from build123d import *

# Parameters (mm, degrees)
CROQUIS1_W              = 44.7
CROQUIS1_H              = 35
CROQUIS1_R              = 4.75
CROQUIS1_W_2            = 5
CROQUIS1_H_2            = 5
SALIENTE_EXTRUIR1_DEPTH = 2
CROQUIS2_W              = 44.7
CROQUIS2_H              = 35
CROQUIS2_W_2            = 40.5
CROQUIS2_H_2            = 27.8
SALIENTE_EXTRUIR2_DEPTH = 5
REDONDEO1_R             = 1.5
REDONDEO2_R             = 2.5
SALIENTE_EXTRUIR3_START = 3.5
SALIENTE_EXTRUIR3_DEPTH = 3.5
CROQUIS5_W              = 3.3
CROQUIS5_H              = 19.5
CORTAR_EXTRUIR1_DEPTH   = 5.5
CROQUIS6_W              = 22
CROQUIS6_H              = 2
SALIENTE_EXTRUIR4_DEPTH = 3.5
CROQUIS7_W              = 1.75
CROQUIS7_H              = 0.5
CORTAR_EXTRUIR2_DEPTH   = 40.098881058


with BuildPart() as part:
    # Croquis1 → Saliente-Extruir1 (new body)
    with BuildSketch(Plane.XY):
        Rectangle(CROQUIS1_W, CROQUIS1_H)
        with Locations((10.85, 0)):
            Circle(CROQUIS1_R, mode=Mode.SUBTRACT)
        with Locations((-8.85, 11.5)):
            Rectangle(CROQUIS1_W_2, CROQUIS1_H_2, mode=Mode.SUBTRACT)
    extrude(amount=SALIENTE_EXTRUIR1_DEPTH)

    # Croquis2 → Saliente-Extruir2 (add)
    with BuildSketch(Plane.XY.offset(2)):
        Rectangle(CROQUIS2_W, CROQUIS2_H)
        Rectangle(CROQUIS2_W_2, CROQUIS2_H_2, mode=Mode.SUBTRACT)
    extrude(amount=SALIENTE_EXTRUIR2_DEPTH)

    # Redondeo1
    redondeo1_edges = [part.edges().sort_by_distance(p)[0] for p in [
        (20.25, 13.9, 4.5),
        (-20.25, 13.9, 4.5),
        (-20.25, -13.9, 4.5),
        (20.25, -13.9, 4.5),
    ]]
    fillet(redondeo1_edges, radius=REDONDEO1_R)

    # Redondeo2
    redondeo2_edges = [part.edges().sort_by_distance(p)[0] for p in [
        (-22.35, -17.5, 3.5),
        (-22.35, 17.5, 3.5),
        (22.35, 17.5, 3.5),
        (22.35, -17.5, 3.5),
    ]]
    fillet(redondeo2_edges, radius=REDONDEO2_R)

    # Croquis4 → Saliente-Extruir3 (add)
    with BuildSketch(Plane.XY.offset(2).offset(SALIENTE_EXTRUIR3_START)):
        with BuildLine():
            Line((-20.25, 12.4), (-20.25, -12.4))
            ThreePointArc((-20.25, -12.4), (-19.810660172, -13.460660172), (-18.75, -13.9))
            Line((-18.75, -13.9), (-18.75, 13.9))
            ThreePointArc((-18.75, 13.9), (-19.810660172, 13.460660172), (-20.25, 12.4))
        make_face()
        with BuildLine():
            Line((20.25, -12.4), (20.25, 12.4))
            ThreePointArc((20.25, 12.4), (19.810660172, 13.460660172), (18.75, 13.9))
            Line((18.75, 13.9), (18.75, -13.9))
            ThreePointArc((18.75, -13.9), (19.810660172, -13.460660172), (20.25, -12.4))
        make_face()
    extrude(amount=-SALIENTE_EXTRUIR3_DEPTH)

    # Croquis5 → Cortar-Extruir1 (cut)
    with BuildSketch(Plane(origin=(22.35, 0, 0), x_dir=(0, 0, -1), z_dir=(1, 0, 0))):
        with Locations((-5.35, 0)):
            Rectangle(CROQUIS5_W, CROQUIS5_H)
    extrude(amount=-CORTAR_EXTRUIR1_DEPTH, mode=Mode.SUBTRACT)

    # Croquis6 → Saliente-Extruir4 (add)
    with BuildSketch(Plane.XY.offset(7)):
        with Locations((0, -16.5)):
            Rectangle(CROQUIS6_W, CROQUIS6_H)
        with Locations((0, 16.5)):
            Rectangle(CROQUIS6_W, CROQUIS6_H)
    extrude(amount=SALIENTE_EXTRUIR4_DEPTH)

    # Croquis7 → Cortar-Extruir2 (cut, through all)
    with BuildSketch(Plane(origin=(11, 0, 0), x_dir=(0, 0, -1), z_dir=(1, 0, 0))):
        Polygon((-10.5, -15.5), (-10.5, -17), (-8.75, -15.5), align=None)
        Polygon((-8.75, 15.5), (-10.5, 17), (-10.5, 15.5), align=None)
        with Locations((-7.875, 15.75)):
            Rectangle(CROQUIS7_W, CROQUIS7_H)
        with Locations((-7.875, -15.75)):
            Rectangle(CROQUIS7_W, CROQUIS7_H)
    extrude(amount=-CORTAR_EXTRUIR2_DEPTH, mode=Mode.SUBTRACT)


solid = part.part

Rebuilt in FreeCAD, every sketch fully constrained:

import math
import FreeCAD as App
import Part
import Sketcher
Q = App.Units.Quantity


def edges_at(feature, points):
    """Names of the edges that pass closest to the given points."""
    edges = feature.Shape.Edges
    near = lambda p: min(range(len(edges)), key=lambda i: edges[i].distToShape(Part.Vertex(*p))[0])
    return sorted({f"Edge{near(p) + 1}" for p in points})

doc = App.newDocument("Part")
body = doc.addObject("PartDesign::Body", "Body")

# Sketch on XY plane
sketch1 = body.newObject("Sketcher::SketchObject", "Sketch")
sketch1.AttachmentSupport = (doc.getObject("XY_Plane"), [""])
sketch1.MapMode = "FlatFace"
sketch1.addGeometry(Part.LineSegment(App.Vector(-22.4, 17.5, 0), App.Vector(-22.4, -17.5, 0)), False)
sketch1.addGeometry(Part.LineSegment(App.Vector(-22.4, -17.5, 0), App.Vector(22.4, -17.5, 0)), False)
sketch1.addGeometry(Part.LineSegment(App.Vector(22.4, -17.5, 0), App.Vector(22.4, 17.5, 0)), False)
sketch1.addGeometry(Part.LineSegment(App.Vector(22.4, 17.5, 0), App.Vector(-22.4, 17.5, 0)), False)
sketch1.addGeometry(Part.Circle(App.Vector(10.8, 0, 0), App.Vector(0, 0, 1), 4.8), False)
sketch1.addGeometry(Part.LineSegment(App.Vector(-6.3, 9, 0), App.Vector(-11.3, 9, 0)), False)
sketch1.addGeometry(Part.LineSegment(App.Vector(-11.3, 9, 0), App.Vector(-11.3, 14, 0)), False)
sketch1.addGeometry(Part.LineSegment(App.Vector(-11.3, 14, 0), App.Vector(-6.3, 14, 0)), False)
sketch1.addGeometry(Part.LineSegment(App.Vector(-6.3, 14, 0), App.Vector(-6.3, 9, 0)), False)
sketch1.addConstraint(Sketcher.Constraint("Coincident", 0, 2, 1, 1))
sketch1.addConstraint(Sketcher.Constraint("Coincident", 1, 2, 2, 1))
sketch1.addConstraint(Sketcher.Constraint("Coincident", 2, 2, 3, 1))
sketch1.addConstraint(Sketcher.Constraint("Coincident", 3, 2, 0, 1))
sketch1.addConstraint(Sketcher.Constraint("Coincident", 5, 2, 6, 1))
sketch1.addConstraint(Sketcher.Constraint("Coincident", 6, 2, 7, 1))
sketch1.addConstraint(Sketcher.Constraint("Coincident", 7, 2, 8, 1))
sketch1.addConstraint(Sketcher.Constraint("Coincident", 8, 2, 5, 1))
sketch1.addConstraint(Sketcher.Constraint("Vertical", 0))
sketch1.addConstraint(Sketcher.Constraint("Horizontal", 1))
sketch1.addConstraint(Sketcher.Constraint("Vertical", 2))
sketch1.addConstraint(Sketcher.Constraint("Horizontal", 3))
sketch1.addConstraint(Sketcher.Constraint("Horizontal", 5))
sketch1.addConstraint(Sketcher.Constraint("Vertical", 6))
sketch1.addConstraint(Sketcher.Constraint("Horizontal", 7))
sketch1.addConstraint(Sketcher.Constraint("Vertical", 8))
sketch1.addConstraint(Sketcher.Constraint("Symmetric", 0, 2, 2, 2, -1, 1))
sketch1.addConstraint(Sketcher.Constraint("PointOnObject", 4, 3, -1))
sketch1.addConstraint(Sketcher.Constraint("Equal", 7, 6))
sketch1.addConstraint(Sketcher.Constraint("Diameter", 4, Q("9.5 mm")))
sketch1.addConstraint(Sketcher.Constraint("DistanceX", 5, 2, 5, 1, Q("5 mm")))
sketch1.addConstraint(Sketcher.Constraint("DistanceY", 0, 2, 0, 1, Q("35 mm")))
sketch1.addConstraint(Sketcher.Constraint("DistanceX", 1, 1, 1, 2, Q("44.7 mm")))
sketch1.addConstraint(Sketcher.Constraint("DistanceY", -1, 1, 5, 2, Q("9 mm")))
sketch1.addConstraint(Sketcher.Constraint("DistanceX", 3, 2, 5, 2, Q("11 mm")))
sketch1.addConstraint(Sketcher.Constraint("DistanceX", 0, 2, 4, 3, Q("33.2 mm")))
pad1 = body.newObject("PartDesign::Pad", "Pad")
pad1.Profile = sketch1
pad1.Length = 2

# Sketch on XY plane
sketch2 = body.newObject("Sketcher::SketchObject", "Sketch001")
sketch2.AttachmentSupport = (doc.getObject("XY_Plane"), [""])
sketch2.MapMode = "FlatFace"
sketch2.AttachmentOffset = App.Placement(App.Vector(0, 0, 2), App.Rotation())
sketch2.addGeometry(Part.LineSegment(App.Vector(-22, 18, 0), App.Vector(-22, -18, 0)), False)
sketch2.addGeometry(Part.LineSegment(App.Vector(-22, -18, 0), App.Vector(22, -18, 0)), False)
sketch2.addGeometry(Part.LineSegment(App.Vector(22, -18, 0), App.Vector(22, 18, 0)), False)
sketch2.addGeometry(Part.LineSegment(App.Vector(22, 18, 0), App.Vector(-22, 18, 0)), False)
sketch2.addGeometry(Part.LineSegment(App.Vector(20, -14, 0), App.Vector(-20, -14, 0)), False)
sketch2.addGeometry(Part.LineSegment(App.Vector(-20, -14, 0), App.Vector(-20, 14, 0)), False)
sketch2.addGeometry(Part.LineSegment(App.Vector(-20, 14, 0), App.Vector(20, 14, 0)), False)
sketch2.addGeometry(Part.LineSegment(App.Vector(20, 14, 0), App.Vector(20, -14, 0)), False)
sketch2.addConstraint(Sketcher.Constraint("Coincident", 0, 2, 1, 1))
sketch2.addConstraint(Sketcher.Constraint("Coincident", 1, 2, 2, 1))
sketch2.addConstraint(Sketcher.Constraint("Coincident", 2, 2, 3, 1))
sketch2.addConstraint(Sketcher.Constraint("Coincident", 3, 2, 0, 1))
sketch2.addConstraint(Sketcher.Constraint("Coincident", 4, 2, 5, 1))
sketch2.addConstraint(Sketcher.Constraint("Coincident", 5, 2, 6, 1))
sketch2.addConstraint(Sketcher.Constraint("Coincident", 6, 2, 7, 1))
sketch2.addConstraint(Sketcher.Constraint("Coincident", 7, 2, 4, 1))
sketch2.addConstraint(Sketcher.Constraint("Vertical", 0))
sketch2.addConstraint(Sketcher.Constraint("Horizontal", 1))
sketch2.addConstraint(Sketcher.Constraint("Vertical", 2))
sketch2.addConstraint(Sketcher.Constraint("Horizontal", 3))
sketch2.addConstraint(Sketcher.Constraint("Horizontal", 4))
sketch2.addConstraint(Sketcher.Constraint("Vertical", 5))
sketch2.addConstraint(Sketcher.Constraint("Horizontal", 6))
sketch2.addConstraint(Sketcher.Constraint("Vertical", 7))
sketch2.addConstraint(Sketcher.Constraint("Symmetric", 0, 2, 2, 2, -1, 1))
sketch2.addConstraint(Sketcher.Constraint("Symmetric", 4, 2, 6, 2, -1, 1))
sketch2.addConstraint(Sketcher.Constraint("DistanceY", 0, 2, 0, 1, Q("35 mm")))
sketch2.addConstraint(Sketcher.Constraint("DistanceX", 1, 1, 1, 2, Q("44.7 mm")))
sketch2.addConstraint(Sketcher.Constraint("DistanceX", 4, 2, 4, 1, Q("40.5 mm")))
sketch2.addConstraint(Sketcher.Constraint("DistanceY", 5, 1, 5, 2, Q("27.8 mm")))
pad2 = body.newObject("PartDesign::Pad", "Pad001")
pad2.Profile = sketch2
pad2.Length = 5
doc.recompute()

fillet = body.newObject("PartDesign::Fillet", "Fillet")
fillet.Base = (pad2, edges_at(pad2, [
    (20.25, 13.9, 4.5),
    (-20.25, 13.9, 4.5),
    (-20.25, -13.9, 4.5),
    (20.25, -13.9, 4.5),
]))
fillet.Radius = 1.5
doc.recompute()

fillet2 = body.newObject("PartDesign::Fillet", "Fillet001")
fillet2.Base = (fillet, edges_at(fillet, [
    (-22.35, -17.5, 3.5),
    (-22.35, 17.5, 3.5),
    (22.35, 17.5, 3.5),
    (22.35, -17.5, 3.5),
]))
fillet2.Radius = 2.5

# Sketch on XY plane
sketch3 = body.newObject("Sketcher::SketchObject", "Sketch002")
sketch3.AttachmentSupport = (doc.getObject("XY_Plane"), [""])
sketch3.MapMode = "FlatFace"
sketch3.AttachmentOffset = App.Placement(App.Vector(0, 0, 5.5), App.Rotation())
sketch3.addGeometry(Part.LineSegment(App.Vector(-20.2, 12.4, 0), App.Vector(-20.2, -12.4, 0)), False)
sketch3.addGeometry(Part.ArcOfCircle(Part.Circle(App.Vector(-18.8, -12.4, 0), App.Vector(0, 0, 1), 1.5), math.radians(180), math.radians(270)), False)
sketch3.addGeometry(Part.LineSegment(App.Vector(-18.8, -13.9, 0), App.Vector(-18.8, 13.9, 0)), False)
sketch3.addGeometry(Part.ArcOfCircle(Part.Circle(App.Vector(-18.8, 12.4, 0), App.Vector(0, 0, 1), 1.5), math.radians(90), math.radians(180)), False)
sketch3.addGeometry(Part.LineSegment(App.Vector(20.2, -12.4, 0), App.Vector(20.2, 12.4, 0)), False)
sketch3.addGeometry(Part.ArcOfCircle(Part.Circle(App.Vector(18.8, 12.4, 0), App.Vector(0, 0, 1), 1.5), math.radians(0), math.radians(90)), False)
sketch3.addGeometry(Part.LineSegment(App.Vector(18.8, 13.9, 0), App.Vector(18.8, -13.9, 0)), False)
sketch3.addGeometry(Part.ArcOfCircle(Part.Circle(App.Vector(18.8, -12.4, 0), App.Vector(0, 0, 1), 1.5), math.radians(-90), math.radians(0)), False)
sketch3.addConstraint(Sketcher.Constraint("Tangent", 0, 2, 1, 1))
sketch3.addConstraint(Sketcher.Constraint("Coincident", 1, 2, 2, 1))
sketch3.addConstraint(Sketcher.Constraint("Coincident", 2, 2, 3, 1))
sketch3.addConstraint(Sketcher.Constraint("Tangent", 3, 2, 0, 1))
sketch3.addConstraint(Sketcher.Constraint("Tangent", 4, 2, 5, 1))
sketch3.addConstraint(Sketcher.Constraint("Coincident", 5, 2, 6, 1))
sketch3.addConstraint(Sketcher.Constraint("Coincident", 6, 2, 7, 1))
sketch3.addConstraint(Sketcher.Constraint("Tangent", 7, 2, 4, 1))
sketch3.addConstraint(Sketcher.Constraint("Vertical", 0))
sketch3.addConstraint(Sketcher.Constraint("Vertical", 2))
sketch3.addConstraint(Sketcher.Constraint("Vertical", 4))
sketch3.addConstraint(Sketcher.Constraint("Vertical", 6))
sketch3.addConstraint(Sketcher.Constraint("Equal", 1, 3))
sketch3.addConstraint(Sketcher.Constraint("Equal", 3, 5))
sketch3.addConstraint(Sketcher.Constraint("Equal", 5, 7))
sketch3.addConstraint(Sketcher.Constraint("Symmetric", 1, 3, 5, 3, -1, 1))
sketch3.addConstraint(Sketcher.Constraint("Symmetric", 2, 2, 6, 2, -1, 1))
sketch3.addConstraint(Sketcher.Constraint("Horizontal", 3, 3, 5, 3))
sketch3.addConstraint(Sketcher.Constraint("Vertical", 3, 3, 1, 2))
sketch3.addConstraint(Sketcher.Constraint("Radius", 1, Q("1.5 mm")))
sketch3.addConstraint(Sketcher.Constraint("DistanceY", 0, 2, 0, 1, Q("24.8 mm")))
sketch3.addConstraint(Sketcher.Constraint("DistanceX", 0, 2, 7, 3, Q("39 mm")))
pad3 = body.newObject("PartDesign::Pad", "Pad002")
pad3.Profile = sketch3
pad3.Length = 3.5
pad3.Reversed = True

# Sketch on YZ plane
sketch4 = body.newObject("Sketcher::SketchObject", "Sketch003")
sketch4.AttachmentSupport = (doc.getObject("YZ_Plane"), [""])
sketch4.MapMode = "FlatFace"
sketch4.AttachmentOffset = App.Placement(App.Vector(0, 0, 22.35), App.Rotation())
sketch4.addGeometry(Part.LineSegment(App.Vector(9.8, 7, 0), App.Vector(-9.8, 7, 0)), False)
sketch4.addGeometry(Part.LineSegment(App.Vector(-9.8, 7, 0), App.Vector(-9.8, 3.7, 0)), False)
sketch4.addGeometry(Part.LineSegment(App.Vector(-9.8, 3.7, 0), App.Vector(9.8, 3.7, 0)), False)
sketch4.addGeometry(Part.LineSegment(App.Vector(9.8, 3.7, 0), App.Vector(9.8, 7, 0)), False)
sketch4.addConstraint(Sketcher.Constraint("Coincident", 0, 2, 1, 1))
sketch4.addConstraint(Sketcher.Constraint("Coincident", 1, 2, 2, 1))
sketch4.addConstraint(Sketcher.Constraint("Coincident", 2, 2, 3, 1))
sketch4.addConstraint(Sketcher.Constraint("Coincident", 3, 2, 0, 1))
sketch4.addConstraint(Sketcher.Constraint("Horizontal", 0))
sketch4.addConstraint(Sketcher.Constraint("Vertical", 1))
sketch4.addConstraint(Sketcher.Constraint("Horizontal", 2))
sketch4.addConstraint(Sketcher.Constraint("Vertical", 3))
sketch4.addConstraint(Sketcher.Constraint("DistanceX", 0, 2, 0, 1, Q("19.5 mm")))
sketch4.addConstraint(Sketcher.Constraint("DistanceY", 1, 2, 1, 1, Q("3.3 mm")))
sketch4.addConstraint(Sketcher.Constraint("DistanceY", -1, 1, 0, 2, Q("7 mm")))
sketch4.addConstraint(Sketcher.Constraint("DistanceX", 0, 2, -1, 1, Q("9.75 mm")))
pocket1 = body.newObject("PartDesign::Pocket", "Pocket")
pocket1.Profile = sketch4
pocket1.Length = 5.5

# Sketch on XY plane
sketch5 = body.newObject("Sketcher::SketchObject", "Sketch004")
sketch5.AttachmentSupport = (doc.getObject("XY_Plane"), [""])
sketch5.MapMode = "FlatFace"
sketch5.AttachmentOffset = App.Placement(App.Vector(0, 0, 7), App.Rotation())
sketch5.addGeometry(Part.LineSegment(App.Vector(-11, -15.5, 0), App.Vector(-11, -17.5, 0)), False)
sketch5.addGeometry(Part.LineSegment(App.Vector(-11, -17.5, 0), App.Vector(11, -17.5, 0)), False)
sketch5.addGeometry(Part.LineSegment(App.Vector(11, -17.5, 0), App.Vector(11, -15.5, 0)), False)
sketch5.addGeometry(Part.LineSegment(App.Vector(11, -15.5, 0), App.Vector(-11, -15.5, 0)), False)
sketch5.addGeometry(Part.LineSegment(App.Vector(-11, 17.5, 0), App.Vector(-11, 15.5, 0)), False)
sketch5.addGeometry(Part.LineSegment(App.Vector(-11, 15.5, 0), App.Vector(11, 15.5, 0)), False)
sketch5.addGeometry(Part.LineSegment(App.Vector(11, 15.5, 0), App.Vector(11, 17.5, 0)), False)
sketch5.addGeometry(Part.LineSegment(App.Vector(11, 17.5, 0), App.Vector(-11, 17.5, 0)), False)
sketch5.addConstraint(Sketcher.Constraint("Coincident", 0, 2, 1, 1))
sketch5.addConstraint(Sketcher.Constraint("Coincident", 1, 2, 2, 1))
sketch5.addConstraint(Sketcher.Constraint("Coincident", 2, 2, 3, 1))
sketch5.addConstraint(Sketcher.Constraint("Coincident", 3, 2, 0, 1))
sketch5.addConstraint(Sketcher.Constraint("Coincident", 4, 2, 5, 1))
sketch5.addConstraint(Sketcher.Constraint("Coincident", 5, 2, 6, 1))
sketch5.addConstraint(Sketcher.Constraint("Coincident", 6, 2, 7, 1))
sketch5.addConstraint(Sketcher.Constraint("Coincident", 7, 2, 4, 1))
sketch5.addConstraint(Sketcher.Constraint("Vertical", 0))
sketch5.addConstraint(Sketcher.Constraint("Horizontal", 1))
sketch5.addConstraint(Sketcher.Constraint("Vertical", 2))
sketch5.addConstraint(Sketcher.Constraint("Horizontal", 3))
sketch5.addConstraint(Sketcher.Constraint("Vertical", 4))
sketch5.addConstraint(Sketcher.Constraint("Horizontal", 5))
sketch5.addConstraint(Sketcher.Constraint("Vertical", 6))
sketch5.addConstraint(Sketcher.Constraint("Horizontal", 7))
sketch5.addConstraint(Sketcher.Constraint("Symmetric", 2, 2, 4, 2, -1, 1))
sketch5.addConstraint(Sketcher.Constraint("Symmetric", 0, 2, 6, 2, -1, 1))
sketch5.addConstraint(Sketcher.Constraint("Vertical", 3, 2, 4, 2))
sketch5.addConstraint(Sketcher.Constraint("DistanceX", 1, 1, 1, 2, Q("22 mm")))
sketch5.addConstraint(Sketcher.Constraint("DistanceY", 0, 2, 0, 1, Q("2 mm")))
sketch5.addConstraint(Sketcher.Constraint("DistanceY", 3, 2, 4, 2, Q("31 mm")))
pad4 = body.newObject("PartDesign::Pad", "Pad003")
pad4.Profile = sketch5
pad4.Length = 3.5

# Sketch on YZ plane
sketch6 = body.newObject("Sketcher::SketchObject", "Sketch005")
sketch6.AttachmentSupport = (doc.getObject("YZ_Plane"), [""])
sketch6.MapMode = "FlatFace"
sketch6.AttachmentOffset = App.Placement(App.Vector(0, 0, 11), App.Rotation())
sketch6.addGeometry(Part.LineSegment(App.Vector(-15.5, 10.5, 0), App.Vector(-17, 10.5, 0)), False)
sketch6.addGeometry(Part.LineSegment(App.Vector(-17, 10.5, 0), App.Vector(-15.5, 8.8, 0)), False)
sketch6.addGeometry(Part.LineSegment(App.Vector(-15.5, 8.8, 0), App.Vector(-15.5, 10.5, 0)), False)
sketch6.addGeometry(Part.LineSegment(App.Vector(15.5, 8.8, 0), App.Vector(17, 10.5, 0)), False)
sketch6.addGeometry(Part.LineSegment(App.Vector(17, 10.5, 0), App.Vector(15.5, 10.5, 0)), False)
sketch6.addGeometry(Part.LineSegment(App.Vector(15.5, 10.5, 0), App.Vector(15.5, 8.8, 0)), False)
sketch6.addGeometry(Part.LineSegment(App.Vector(16, 8.8, 0), App.Vector(15.5, 8.8, 0)), False)
sketch6.addGeometry(Part.LineSegment(App.Vector(15.5, 8.8, 0), App.Vector(15.5, 7, 0)), False)
sketch6.addGeometry(Part.LineSegment(App.Vector(15.5, 7, 0), App.Vector(16, 7, 0)), False)
sketch6.addGeometry(Part.LineSegment(App.Vector(16, 7, 0), App.Vector(16, 8.8, 0)), False)
sketch6.addGeometry(Part.LineSegment(App.Vector(-15.5, 8.8, 0), App.Vector(-16, 8.8, 0)), False)
sketch6.addGeometry(Part.LineSegment(App.Vector(-16, 8.8, 0), App.Vector(-16, 7, 0)), False)
sketch6.addGeometry(Part.LineSegment(App.Vector(-16, 7, 0), App.Vector(-15.5, 7, 0)), False)
sketch6.addGeometry(Part.LineSegment(App.Vector(-15.5, 7, 0), App.Vector(-15.5, 8.8, 0)), False)
sketch6.addConstraint(Sketcher.Constraint("Coincident", 0, 2, 1, 1))
sketch6.addConstraint(Sketcher.Constraint("Coincident", 1, 2, 2, 1))
sketch6.addConstraint(Sketcher.Constraint("Coincident", 2, 2, 0, 1))
sketch6.addConstraint(Sketcher.Constraint("Coincident", 3, 2, 4, 1))
sketch6.addConstraint(Sketcher.Constraint("Coincident", 4, 2, 5, 1))
sketch6.addConstraint(Sketcher.Constraint("Coincident", 5, 2, 3, 1))
sketch6.addConstraint(Sketcher.Constraint("Coincident", 6, 2, 7, 1))
sketch6.addConstraint(Sketcher.Constraint("Coincident", 7, 2, 8, 1))
sketch6.addConstraint(Sketcher.Constraint("Coincident", 8, 2, 9, 1))
sketch6.addConstraint(Sketcher.Constraint("Coincident", 9, 2, 6, 1))
sketch6.addConstraint(Sketcher.Constraint("Coincident", 10, 2, 11, 1))
sketch6.addConstraint(Sketcher.Constraint("Coincident", 11, 2, 12, 1))
sketch6.addConstraint(Sketcher.Constraint("Coincident", 12, 2, 13, 1))
sketch6.addConstraint(Sketcher.Constraint("Coincident", 13, 2, 10, 1))
sketch6.addConstraint(Sketcher.Constraint("Horizontal", 0))
sketch6.addConstraint(Sketcher.Constraint("Vertical", 2))
sketch6.addConstraint(Sketcher.Constraint("Horizontal", 4))
sketch6.addConstraint(Sketcher.Constraint("Vertical", 5))
sketch6.addConstraint(Sketcher.Constraint("Horizontal", 6))
sketch6.addConstraint(Sketcher.Constraint("Vertical", 7))
sketch6.addConstraint(Sketcher.Constraint("Horizontal", 8))
sketch6.addConstraint(Sketcher.Constraint("Vertical", 9))
sketch6.addConstraint(Sketcher.Constraint("Horizontal", 10))
sketch6.addConstraint(Sketcher.Constraint("Vertical", 11))
sketch6.addConstraint(Sketcher.Constraint("Horizontal", 12))
sketch6.addConstraint(Sketcher.Constraint("Vertical", 13))
sketch6.addConstraint(Sketcher.Constraint("Coincident", 6, 2, 5, 2))
sketch6.addConstraint(Sketcher.Constraint("Coincident", 13, 2, 1, 2))
sketch6.addConstraint(Sketcher.Constraint("Symmetric", 0, 2, 3, 2, -2))
sketch6.addConstraint(Sketcher.Constraint("Symmetric", 1, 2, 5, 2, -2))
sketch6.addConstraint(Sketcher.Constraint("Symmetric", 8, 2, 11, 2, -2))
sketch6.addConstraint(Sketcher.Constraint("Equal", 5, 7))
sketch6.addConstraint(Sketcher.Constraint("DistanceX", 0, 2, 0, 1, Q("1.5 mm")))
sketch6.addConstraint(Sketcher.Constraint("DistanceX", 6, 2, 6, 1, Q("0.5 mm")))
sketch6.addConstraint(Sketcher.Constraint("DistanceX", 0, 2, -1, 1, Q("17 mm")))
sketch6.addConstraint(Sketcher.Constraint("DistanceY", -1, 1, 7, 2, Q("7 mm")))
sketch6.addConstraint(Sketcher.Constraint("DistanceY", 2, 1, 2, 2, Q("1.75 mm")))
pocket2 = body.newObject("PartDesign::Pocket", "Pocket001")
pocket2.Profile = sketch6
pocket2.Type = "ThroughAll"

doc.recompute()
